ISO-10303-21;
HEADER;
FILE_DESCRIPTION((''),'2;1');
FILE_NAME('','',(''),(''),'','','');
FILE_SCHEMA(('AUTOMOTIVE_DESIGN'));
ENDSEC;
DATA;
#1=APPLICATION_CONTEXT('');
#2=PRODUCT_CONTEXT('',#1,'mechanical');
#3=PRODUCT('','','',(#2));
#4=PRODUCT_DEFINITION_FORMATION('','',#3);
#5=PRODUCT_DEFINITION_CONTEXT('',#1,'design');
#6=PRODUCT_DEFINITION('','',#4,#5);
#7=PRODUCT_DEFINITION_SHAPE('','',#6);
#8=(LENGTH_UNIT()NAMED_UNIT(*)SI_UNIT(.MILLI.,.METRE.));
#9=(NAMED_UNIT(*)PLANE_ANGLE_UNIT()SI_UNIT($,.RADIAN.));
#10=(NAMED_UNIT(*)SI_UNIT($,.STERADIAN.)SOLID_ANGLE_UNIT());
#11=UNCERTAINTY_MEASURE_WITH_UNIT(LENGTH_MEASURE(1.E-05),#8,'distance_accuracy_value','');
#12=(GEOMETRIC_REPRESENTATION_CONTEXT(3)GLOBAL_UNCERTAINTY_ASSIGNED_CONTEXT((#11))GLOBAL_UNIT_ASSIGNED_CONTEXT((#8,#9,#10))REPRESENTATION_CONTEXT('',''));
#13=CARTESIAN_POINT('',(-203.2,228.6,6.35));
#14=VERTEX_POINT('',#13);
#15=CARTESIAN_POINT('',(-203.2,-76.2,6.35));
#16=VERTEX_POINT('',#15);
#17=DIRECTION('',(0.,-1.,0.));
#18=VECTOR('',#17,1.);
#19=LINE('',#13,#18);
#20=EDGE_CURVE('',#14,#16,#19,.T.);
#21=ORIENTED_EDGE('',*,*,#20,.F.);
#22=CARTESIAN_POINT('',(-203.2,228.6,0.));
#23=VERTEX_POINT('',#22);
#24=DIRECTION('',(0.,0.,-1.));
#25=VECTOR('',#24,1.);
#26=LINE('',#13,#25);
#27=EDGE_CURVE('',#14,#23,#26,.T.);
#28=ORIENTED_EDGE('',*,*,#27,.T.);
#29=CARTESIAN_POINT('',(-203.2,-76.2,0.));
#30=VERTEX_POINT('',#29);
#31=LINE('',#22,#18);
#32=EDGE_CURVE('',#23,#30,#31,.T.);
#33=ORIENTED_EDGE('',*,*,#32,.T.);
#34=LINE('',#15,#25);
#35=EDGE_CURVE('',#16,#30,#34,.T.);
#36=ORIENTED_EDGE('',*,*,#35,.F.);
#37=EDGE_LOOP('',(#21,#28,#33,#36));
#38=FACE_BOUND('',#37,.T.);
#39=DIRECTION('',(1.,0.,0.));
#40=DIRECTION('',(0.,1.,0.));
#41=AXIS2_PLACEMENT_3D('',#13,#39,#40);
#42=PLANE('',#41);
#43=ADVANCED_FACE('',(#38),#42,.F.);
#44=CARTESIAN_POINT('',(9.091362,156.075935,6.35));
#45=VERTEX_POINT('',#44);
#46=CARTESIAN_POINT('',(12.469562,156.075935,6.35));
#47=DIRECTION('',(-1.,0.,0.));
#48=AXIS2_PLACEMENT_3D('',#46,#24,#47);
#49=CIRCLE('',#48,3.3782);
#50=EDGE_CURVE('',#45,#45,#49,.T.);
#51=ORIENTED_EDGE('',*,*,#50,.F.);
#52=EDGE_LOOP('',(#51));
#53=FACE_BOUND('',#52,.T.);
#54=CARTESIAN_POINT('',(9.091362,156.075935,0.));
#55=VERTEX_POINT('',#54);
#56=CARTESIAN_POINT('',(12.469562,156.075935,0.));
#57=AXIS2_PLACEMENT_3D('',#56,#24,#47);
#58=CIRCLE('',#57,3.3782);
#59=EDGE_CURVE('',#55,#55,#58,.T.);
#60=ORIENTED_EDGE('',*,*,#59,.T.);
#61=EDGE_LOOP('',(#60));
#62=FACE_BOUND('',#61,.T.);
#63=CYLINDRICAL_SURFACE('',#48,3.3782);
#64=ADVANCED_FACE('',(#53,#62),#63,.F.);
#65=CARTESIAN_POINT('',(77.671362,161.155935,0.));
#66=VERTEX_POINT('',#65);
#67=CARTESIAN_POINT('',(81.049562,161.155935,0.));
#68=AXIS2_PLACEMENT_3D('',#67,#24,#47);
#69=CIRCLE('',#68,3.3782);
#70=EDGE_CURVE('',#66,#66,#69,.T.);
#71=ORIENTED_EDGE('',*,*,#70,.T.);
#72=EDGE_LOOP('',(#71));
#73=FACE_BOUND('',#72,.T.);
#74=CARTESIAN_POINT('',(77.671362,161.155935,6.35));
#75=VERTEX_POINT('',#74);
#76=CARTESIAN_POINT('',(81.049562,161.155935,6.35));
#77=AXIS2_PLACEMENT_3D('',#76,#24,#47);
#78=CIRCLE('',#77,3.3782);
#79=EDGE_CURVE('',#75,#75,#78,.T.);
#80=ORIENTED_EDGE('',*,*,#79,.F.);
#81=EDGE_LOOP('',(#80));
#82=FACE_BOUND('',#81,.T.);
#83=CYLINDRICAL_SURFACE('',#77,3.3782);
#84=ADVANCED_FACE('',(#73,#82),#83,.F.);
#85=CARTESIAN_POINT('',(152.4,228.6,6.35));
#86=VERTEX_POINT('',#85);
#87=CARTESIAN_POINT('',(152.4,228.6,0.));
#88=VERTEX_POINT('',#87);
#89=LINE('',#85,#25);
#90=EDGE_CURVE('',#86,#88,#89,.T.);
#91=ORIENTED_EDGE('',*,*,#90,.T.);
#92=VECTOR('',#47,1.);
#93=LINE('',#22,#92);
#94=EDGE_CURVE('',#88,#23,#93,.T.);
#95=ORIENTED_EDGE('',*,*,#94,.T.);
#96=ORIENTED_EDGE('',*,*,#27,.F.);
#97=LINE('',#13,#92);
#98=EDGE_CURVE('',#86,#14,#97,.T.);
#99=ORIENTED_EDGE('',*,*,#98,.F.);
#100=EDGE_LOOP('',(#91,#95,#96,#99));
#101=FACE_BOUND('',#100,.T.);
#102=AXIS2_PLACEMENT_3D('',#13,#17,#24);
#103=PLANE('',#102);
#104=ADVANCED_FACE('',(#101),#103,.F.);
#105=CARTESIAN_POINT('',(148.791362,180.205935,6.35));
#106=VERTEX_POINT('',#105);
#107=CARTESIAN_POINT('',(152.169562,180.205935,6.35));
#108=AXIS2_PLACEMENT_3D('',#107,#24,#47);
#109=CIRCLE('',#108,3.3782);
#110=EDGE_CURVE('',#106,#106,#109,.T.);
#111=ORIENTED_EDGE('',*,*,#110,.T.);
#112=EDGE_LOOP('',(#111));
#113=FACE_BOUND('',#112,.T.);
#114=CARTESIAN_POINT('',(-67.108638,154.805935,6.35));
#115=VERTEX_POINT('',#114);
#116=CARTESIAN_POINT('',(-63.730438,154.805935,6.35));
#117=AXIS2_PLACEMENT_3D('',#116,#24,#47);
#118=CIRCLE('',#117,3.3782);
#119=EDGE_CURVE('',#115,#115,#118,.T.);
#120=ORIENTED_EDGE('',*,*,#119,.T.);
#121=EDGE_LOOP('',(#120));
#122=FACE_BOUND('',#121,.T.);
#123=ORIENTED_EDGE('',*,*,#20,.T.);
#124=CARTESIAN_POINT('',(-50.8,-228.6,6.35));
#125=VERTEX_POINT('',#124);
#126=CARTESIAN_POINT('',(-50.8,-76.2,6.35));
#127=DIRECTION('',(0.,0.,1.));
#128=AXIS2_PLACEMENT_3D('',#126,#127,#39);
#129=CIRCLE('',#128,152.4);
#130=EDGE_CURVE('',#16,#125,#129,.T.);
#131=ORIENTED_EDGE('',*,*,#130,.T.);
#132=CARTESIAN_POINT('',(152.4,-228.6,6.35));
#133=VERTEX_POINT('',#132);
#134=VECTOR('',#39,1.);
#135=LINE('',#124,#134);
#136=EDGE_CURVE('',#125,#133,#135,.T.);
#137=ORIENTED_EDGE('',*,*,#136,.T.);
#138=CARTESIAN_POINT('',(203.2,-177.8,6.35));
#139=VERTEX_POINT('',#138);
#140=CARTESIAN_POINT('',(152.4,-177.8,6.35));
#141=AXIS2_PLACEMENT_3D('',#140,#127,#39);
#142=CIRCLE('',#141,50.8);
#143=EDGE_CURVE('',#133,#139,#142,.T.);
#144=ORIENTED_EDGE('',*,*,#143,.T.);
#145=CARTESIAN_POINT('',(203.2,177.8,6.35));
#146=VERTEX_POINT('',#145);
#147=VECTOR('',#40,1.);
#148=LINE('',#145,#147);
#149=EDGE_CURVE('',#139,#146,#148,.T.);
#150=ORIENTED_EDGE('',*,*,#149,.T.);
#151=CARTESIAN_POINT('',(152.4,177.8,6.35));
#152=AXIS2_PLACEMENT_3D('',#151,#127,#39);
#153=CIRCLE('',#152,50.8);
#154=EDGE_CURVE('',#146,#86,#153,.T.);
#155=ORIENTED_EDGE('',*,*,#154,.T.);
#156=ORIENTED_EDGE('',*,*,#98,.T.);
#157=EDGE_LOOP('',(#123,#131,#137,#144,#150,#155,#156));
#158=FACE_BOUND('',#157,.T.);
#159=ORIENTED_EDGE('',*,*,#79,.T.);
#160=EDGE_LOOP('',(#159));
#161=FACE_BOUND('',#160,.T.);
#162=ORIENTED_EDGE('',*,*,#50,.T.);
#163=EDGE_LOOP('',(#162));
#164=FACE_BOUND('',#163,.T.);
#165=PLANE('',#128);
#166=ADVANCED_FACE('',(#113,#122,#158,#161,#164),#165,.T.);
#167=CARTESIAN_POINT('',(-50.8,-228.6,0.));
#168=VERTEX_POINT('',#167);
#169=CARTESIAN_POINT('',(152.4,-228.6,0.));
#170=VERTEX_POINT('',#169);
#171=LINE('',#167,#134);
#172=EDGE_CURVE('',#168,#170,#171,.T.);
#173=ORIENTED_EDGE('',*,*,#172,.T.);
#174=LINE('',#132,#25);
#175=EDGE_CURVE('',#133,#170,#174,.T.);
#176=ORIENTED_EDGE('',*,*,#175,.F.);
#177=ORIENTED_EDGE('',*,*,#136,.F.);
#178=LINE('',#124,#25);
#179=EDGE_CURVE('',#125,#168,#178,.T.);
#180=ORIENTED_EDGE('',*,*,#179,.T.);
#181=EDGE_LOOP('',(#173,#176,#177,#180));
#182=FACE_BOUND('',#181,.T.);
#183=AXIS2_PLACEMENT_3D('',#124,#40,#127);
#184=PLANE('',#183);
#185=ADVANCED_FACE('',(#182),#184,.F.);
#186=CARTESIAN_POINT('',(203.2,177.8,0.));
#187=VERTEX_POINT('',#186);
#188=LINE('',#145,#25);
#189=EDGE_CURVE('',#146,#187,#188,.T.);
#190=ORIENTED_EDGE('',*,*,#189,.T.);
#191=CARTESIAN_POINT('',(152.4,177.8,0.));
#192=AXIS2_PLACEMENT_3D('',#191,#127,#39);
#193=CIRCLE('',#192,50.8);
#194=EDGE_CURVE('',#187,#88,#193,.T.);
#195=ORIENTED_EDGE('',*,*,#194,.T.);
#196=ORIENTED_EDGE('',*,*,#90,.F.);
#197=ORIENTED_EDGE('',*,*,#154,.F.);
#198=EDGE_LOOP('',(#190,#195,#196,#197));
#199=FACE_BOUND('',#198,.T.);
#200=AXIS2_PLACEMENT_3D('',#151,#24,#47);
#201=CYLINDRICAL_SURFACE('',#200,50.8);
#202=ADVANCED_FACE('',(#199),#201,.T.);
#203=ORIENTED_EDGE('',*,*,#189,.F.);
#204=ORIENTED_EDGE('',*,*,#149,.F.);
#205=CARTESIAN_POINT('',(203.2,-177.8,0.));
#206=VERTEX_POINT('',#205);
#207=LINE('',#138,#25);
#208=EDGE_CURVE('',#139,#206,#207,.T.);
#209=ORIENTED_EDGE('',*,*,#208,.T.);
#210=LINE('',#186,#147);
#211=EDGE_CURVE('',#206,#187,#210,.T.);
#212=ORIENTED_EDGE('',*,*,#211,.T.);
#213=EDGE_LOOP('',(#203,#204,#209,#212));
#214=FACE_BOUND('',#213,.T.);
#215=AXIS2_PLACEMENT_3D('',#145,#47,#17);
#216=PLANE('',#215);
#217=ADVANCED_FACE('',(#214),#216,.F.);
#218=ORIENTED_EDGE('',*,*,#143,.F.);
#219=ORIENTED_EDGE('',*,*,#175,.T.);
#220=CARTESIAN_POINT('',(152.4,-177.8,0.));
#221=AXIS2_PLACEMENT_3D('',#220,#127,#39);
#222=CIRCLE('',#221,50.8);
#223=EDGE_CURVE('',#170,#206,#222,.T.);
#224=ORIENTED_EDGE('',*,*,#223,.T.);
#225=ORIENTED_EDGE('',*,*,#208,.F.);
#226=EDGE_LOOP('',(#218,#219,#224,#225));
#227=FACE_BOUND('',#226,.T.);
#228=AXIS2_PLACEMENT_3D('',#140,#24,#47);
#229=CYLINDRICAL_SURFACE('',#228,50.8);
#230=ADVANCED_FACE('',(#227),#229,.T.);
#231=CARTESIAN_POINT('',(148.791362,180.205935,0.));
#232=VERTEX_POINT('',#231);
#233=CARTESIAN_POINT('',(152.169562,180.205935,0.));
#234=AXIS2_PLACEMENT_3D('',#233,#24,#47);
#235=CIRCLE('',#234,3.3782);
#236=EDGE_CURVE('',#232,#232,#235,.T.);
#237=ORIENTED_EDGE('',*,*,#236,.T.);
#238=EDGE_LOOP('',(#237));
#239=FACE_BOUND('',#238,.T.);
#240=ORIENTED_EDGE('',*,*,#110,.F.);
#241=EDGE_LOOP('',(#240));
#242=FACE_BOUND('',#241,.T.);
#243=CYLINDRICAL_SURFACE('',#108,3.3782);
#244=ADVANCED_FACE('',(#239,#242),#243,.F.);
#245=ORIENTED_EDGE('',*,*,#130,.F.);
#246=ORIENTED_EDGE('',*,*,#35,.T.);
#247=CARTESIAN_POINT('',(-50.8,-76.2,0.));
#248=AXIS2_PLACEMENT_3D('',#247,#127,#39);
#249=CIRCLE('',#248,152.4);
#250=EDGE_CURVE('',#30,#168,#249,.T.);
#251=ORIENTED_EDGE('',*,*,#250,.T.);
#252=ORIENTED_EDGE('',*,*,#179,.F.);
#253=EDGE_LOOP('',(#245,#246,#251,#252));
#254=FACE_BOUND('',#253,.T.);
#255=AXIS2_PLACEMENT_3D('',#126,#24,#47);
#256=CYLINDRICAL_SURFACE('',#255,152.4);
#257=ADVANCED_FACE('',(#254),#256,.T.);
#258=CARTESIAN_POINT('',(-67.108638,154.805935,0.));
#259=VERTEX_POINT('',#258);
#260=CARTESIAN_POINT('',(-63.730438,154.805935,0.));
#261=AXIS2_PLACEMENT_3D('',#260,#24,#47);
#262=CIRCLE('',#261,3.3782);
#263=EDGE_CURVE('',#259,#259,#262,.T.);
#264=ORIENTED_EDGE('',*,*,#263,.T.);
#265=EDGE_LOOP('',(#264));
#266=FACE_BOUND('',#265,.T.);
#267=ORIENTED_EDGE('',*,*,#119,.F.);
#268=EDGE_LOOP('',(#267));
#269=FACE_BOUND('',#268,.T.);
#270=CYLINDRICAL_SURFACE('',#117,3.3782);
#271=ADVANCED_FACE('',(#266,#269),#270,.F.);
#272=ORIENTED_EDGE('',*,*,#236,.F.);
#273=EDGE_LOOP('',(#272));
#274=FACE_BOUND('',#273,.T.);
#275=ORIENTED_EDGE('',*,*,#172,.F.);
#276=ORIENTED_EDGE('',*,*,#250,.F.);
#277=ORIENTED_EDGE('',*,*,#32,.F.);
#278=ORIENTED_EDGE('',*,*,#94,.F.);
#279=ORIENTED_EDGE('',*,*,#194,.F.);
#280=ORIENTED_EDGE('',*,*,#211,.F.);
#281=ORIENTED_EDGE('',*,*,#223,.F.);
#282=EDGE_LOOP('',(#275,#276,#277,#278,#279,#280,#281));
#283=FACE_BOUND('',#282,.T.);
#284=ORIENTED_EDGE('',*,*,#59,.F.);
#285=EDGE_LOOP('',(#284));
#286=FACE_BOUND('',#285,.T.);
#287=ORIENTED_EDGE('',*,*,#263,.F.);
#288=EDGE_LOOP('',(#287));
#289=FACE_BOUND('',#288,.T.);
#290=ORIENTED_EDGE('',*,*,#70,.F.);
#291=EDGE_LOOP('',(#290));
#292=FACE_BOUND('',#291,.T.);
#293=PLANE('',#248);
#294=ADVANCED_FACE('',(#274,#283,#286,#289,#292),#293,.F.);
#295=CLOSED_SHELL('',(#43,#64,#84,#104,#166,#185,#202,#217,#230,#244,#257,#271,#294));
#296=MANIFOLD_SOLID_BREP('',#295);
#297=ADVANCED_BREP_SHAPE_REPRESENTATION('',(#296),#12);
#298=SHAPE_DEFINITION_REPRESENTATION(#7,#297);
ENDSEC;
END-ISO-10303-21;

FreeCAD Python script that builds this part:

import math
import FreeCAD as App
import Part
import Sketcher
from FreeCAD import Vector
Q = App.Units.Quantity

doc = App.newDocument("Part")
body = doc.addObject("PartDesign::Body", "Body")

sketch1 = doc.addObject("Sketcher::SketchObject", "Sketch")
body.addObject(sketch1)
sketch1.AttachmentSupport = (doc.XY_Plane, [""])
sketch1.MapMode = "FlatFace"
sketch1.addGeometry(Part.LineSegment(Vector(152, 229, 0), Vector(-203, 229, 0)), False)
sketch1.addGeometry(Part.LineSegment(Vector(-203, 229, 0), Vector(-203, -76, 0)), False)
sketch1.addGeometry(Part.ArcOfCircle(Part.Circle(Vector(-51, -76, 0), Vector(0, 0, 1), 152), math.radians(180), math.radians(270)), False)
sketch1.addGeometry(Part.LineSegment(Vector(-51, -229, 0), Vector(152, -229, 0)), False)
sketch1.addGeometry(Part.ArcOfCircle(Part.Circle(Vector(152, -178, 0), Vector(0, 0, 1), 51), math.radians(-90), math.radians(0)), False)
sketch1.addGeometry(Part.LineSegment(Vector(203, -178, 0), Vector(203, 178, 0)), False)
sketch1.addGeometry(Part.ArcOfCircle(Part.Circle(Vector(152, 178, 0), Vector(0, 0, 1), 51), math.radians(0), math.radians(90)), False)
sketch1.addConstraint(Sketcher.Constraint("Coincident", 0, 2, 1, 1))
sketch1.addConstraint(Sketcher.Constraint("Tangent", 1, 2, 2, 1))
sketch1.addConstraint(Sketcher.Constraint("Tangent", 2, 2, 3, 1))
sketch1.addConstraint(Sketcher.Constraint("Tangent", 3, 2, 4, 1))
sketch1.addConstraint(Sketcher.Constraint("Tangent", 4, 2, 5, 1))
sketch1.addConstraint(Sketcher.Constraint("Tangent", 5, 2, 6, 1))
sketch1.addConstraint(Sketcher.Constraint("Tangent", 6, 2, 0, 1))
sketch1.addConstraint(Sketcher.Constraint("Horizontal", 0))
sketch1.addConstraint(Sketcher.Constraint("Vertical", 1))
sketch1.addConstraint(Sketcher.Constraint("Horizontal", 3))
sketch1.addConstraint(Sketcher.Constraint("Vertical", 5))
sketch1.addConstraint(Sketcher.Constraint("Equal", 4, 6))
sketch1.addConstraint(Sketcher.Constraint("Equal", 0, 5))
sketch1.addConstraint(Sketcher.Constraint("Radius", 2, Q("6 in")))
sketch1.addConstraint(Sketcher.Constraint("Radius", 4, Q("2 in")))
sketch1.addConstraint(Sketcher.Constraint("DistanceX", 0, 2, 0, 1, Q("14 in")))
sketch1.addConstraint(Sketcher.Constraint("DistanceX", 2, 3, -1, 1, Q("2 in")))
sketch1.addConstraint(Sketcher.Constraint("DistanceY", 2, 3, -1, 1, Q("3 in")))
pad1 = doc.addObject("PartDesign::Pad", "Pad")
body.addObject(pad1)
pad1.Profile = sketch1
pad1.Length = Q("0.25 in")

sketch2 = doc.addObject("Sketcher::SketchObject", "Sketch001")
body.addObject(sketch2)
sketch2.AttachmentSupport = (doc.XY_Plane, [""])
sketch2.MapMode = "FlatFace"
sketch2.addGeometry(Part.Circle(Vector(81, 161.2, 0), Vector(0, 0, 1), 3.4), False)
sketch2.addGeometry(Part.Circle(Vector(152.2, 180.2, 0), Vector(0, 0, 1), 3.4), False)
sketch2.addGeometry(Part.Circle(Vector(-63.7, 154.8, 0), Vector(0, 0, 1), 3.4), False)
sketch2.addGeometry(Part.Circle(Vector(12.5, 156.1, 0), Vector(0, 0, 1), 3.4), False)
sketch2.addConstraint(Sketcher.Constraint("Equal", 0, 1))
sketch2.addConstraint(Sketcher.Constraint("Equal", 1, 2))
sketch2.addConstraint(Sketcher.Constraint("Equal", 2, 3))
sketch2.addConstraint(Sketcher.Constraint("Diameter", 0, Q("0.266 in")))
sketch2.addConstraint(Sketcher.Constraint("DistanceY", 2, 3, 1, 3, Q("1 in")))
sketch2.addConstraint(Sketcher.Constraint("DistanceX", 2, 3, 3, 3, Q("3 in")))
sketch2.addConstraint(Sketcher.Constraint("DistanceX", 0, 3, 1, 3, Q("2.8 in")))
sketch2.addConstraint(Sketcher.Constraint("DistanceX", 2, 3, 0, 3, Q("5.7 in")))
sketch2.addConstraint(Sketcher.Constraint("DistanceY", 3, 3, 0, 3, Q("0.2 in")))
sketch2.addConstraint(Sketcher.Constraint("DistanceY", 0, 3, 1, 3, Q("0.75 in")))
sketch2.addConstraint(Sketcher.Constraint("DistanceX", -1, 1, 0, 3, Q("81.049562 mm")))
sketch2.addConstraint(Sketcher.Constraint("DistanceY", -1, 1, 0, 3, Q("161.155935 mm")))
pocket1 = doc.addObject("PartDesign::Pocket", "Pocket")
body.addObject(pocket1)
pocket1.Profile = sketch2
pocket1.Length = Q("0.25 in")
pocket1.Reversed = True

doc.recompute()
